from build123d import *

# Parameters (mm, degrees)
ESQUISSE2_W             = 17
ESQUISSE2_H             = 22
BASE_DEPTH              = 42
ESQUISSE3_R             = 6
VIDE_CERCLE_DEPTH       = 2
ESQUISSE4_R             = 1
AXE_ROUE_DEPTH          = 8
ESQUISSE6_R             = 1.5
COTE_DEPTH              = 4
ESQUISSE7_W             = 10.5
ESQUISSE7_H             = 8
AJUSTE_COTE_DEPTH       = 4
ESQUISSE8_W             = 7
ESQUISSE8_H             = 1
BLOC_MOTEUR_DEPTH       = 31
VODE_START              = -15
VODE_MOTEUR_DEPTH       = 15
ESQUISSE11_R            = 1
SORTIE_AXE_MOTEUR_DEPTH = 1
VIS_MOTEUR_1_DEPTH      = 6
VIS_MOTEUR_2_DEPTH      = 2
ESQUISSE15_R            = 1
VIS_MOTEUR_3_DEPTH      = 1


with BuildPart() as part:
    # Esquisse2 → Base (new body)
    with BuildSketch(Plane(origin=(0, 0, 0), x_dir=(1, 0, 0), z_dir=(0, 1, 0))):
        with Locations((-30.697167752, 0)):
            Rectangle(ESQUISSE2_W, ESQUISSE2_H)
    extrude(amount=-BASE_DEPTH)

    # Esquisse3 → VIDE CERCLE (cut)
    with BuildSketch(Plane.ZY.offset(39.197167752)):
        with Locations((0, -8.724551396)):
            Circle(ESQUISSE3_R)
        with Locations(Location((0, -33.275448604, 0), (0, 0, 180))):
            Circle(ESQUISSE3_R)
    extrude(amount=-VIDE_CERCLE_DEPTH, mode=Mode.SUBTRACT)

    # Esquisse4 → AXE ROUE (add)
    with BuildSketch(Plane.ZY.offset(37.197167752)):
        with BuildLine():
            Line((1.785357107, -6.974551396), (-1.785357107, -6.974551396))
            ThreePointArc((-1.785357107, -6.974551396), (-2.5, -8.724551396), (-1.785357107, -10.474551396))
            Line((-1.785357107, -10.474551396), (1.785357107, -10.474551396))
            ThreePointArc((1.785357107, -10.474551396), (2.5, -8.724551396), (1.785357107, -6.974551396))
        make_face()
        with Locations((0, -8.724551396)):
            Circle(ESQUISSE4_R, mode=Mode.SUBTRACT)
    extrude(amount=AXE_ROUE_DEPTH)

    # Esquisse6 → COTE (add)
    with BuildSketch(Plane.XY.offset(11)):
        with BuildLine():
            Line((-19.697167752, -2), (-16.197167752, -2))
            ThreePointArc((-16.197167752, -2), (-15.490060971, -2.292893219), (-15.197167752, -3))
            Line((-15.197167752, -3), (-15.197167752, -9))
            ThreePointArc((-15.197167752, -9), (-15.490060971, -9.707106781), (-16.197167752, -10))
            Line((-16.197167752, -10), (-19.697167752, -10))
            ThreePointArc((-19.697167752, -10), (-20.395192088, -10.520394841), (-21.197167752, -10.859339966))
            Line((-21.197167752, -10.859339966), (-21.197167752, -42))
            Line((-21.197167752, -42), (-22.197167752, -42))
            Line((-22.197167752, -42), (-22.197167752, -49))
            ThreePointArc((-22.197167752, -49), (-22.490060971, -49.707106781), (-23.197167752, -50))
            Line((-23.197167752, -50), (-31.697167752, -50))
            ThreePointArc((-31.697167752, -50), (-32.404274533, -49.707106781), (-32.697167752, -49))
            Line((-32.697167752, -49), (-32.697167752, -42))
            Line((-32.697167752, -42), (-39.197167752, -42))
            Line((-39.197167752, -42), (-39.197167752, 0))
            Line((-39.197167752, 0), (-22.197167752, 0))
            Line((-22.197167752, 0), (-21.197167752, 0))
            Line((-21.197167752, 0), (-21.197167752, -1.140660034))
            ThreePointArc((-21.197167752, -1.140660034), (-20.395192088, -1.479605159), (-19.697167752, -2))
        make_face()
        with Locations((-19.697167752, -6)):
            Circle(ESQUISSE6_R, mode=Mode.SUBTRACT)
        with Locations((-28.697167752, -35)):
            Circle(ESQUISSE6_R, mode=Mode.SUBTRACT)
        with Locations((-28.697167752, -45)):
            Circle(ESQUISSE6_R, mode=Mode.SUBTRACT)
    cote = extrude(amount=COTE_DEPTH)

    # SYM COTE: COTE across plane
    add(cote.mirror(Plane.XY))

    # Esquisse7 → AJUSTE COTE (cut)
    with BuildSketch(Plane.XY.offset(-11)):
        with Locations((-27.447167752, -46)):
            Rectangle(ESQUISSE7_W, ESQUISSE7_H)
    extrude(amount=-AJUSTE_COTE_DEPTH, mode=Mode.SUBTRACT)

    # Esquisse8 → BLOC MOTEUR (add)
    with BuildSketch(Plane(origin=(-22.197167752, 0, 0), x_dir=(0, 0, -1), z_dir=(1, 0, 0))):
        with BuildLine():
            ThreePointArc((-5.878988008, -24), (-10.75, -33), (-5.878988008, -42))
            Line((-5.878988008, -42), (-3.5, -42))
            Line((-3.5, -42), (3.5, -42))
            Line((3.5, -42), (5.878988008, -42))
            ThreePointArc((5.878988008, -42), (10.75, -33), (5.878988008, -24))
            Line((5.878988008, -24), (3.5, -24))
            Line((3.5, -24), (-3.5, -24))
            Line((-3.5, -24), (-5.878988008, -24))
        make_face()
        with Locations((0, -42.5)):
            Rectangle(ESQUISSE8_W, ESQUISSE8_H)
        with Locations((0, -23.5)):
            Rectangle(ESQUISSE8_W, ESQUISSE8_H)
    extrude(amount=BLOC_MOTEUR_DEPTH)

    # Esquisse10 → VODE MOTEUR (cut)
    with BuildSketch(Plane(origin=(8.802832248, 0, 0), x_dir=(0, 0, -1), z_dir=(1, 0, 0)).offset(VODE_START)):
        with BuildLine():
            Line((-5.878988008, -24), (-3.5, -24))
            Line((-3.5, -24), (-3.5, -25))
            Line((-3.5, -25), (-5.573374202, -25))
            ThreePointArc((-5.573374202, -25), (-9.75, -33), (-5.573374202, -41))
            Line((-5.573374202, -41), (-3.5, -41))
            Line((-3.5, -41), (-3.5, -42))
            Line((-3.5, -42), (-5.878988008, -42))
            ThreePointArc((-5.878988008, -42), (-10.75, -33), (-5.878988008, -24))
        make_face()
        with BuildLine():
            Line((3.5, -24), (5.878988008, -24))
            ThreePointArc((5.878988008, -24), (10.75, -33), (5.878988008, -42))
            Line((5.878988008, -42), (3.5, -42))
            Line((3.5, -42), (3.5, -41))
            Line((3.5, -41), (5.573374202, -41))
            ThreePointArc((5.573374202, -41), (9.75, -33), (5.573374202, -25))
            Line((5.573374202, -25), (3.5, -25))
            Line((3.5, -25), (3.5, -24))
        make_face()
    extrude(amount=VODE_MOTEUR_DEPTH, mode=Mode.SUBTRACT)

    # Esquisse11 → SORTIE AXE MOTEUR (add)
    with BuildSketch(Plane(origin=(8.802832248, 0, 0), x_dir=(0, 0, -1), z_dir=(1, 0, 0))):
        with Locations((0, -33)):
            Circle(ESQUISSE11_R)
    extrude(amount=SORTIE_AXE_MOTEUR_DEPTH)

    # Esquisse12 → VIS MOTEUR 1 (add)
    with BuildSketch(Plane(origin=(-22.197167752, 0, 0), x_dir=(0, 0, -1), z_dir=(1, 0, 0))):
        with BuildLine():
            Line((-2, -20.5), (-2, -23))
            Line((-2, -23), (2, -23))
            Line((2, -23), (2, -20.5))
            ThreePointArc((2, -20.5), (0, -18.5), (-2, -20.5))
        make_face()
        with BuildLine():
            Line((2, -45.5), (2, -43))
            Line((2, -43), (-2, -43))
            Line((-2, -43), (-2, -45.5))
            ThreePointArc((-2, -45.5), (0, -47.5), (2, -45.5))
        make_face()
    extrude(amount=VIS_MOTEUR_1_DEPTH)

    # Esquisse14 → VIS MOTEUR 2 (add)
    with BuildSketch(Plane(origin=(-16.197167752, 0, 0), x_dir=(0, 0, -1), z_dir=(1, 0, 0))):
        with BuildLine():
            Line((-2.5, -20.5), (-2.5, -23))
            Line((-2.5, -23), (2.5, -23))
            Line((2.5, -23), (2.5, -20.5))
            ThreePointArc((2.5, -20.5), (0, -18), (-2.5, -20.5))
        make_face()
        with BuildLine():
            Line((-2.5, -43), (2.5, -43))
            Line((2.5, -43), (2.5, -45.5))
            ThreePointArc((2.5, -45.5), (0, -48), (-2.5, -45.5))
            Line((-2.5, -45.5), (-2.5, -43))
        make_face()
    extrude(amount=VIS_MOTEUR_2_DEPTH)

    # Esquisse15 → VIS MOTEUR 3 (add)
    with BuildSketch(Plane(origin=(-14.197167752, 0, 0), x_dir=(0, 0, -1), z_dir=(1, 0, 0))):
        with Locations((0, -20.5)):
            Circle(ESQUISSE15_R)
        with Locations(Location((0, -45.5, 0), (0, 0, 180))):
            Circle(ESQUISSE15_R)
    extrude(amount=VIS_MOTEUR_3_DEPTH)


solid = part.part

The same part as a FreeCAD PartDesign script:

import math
import FreeCAD as App
import Part
import Sketcher

V = App.Vector


def add_polygon(sketch, points):
    """Adds a closed chain of lines whose ends are joined by coincident constraints."""
    first, n = sketch.GeometryCount, len(points)
    for a, b in zip(points, points[1:] + points[:1]):
        sketch.addGeometry(Part.LineSegment(App.Vector(*a, 0), App.Vector(*b, 0)), False)
    for i in range(n):
        sketch.addConstraint(Sketcher.Constraint("Coincident", first + i, 2, first + (i + 1) % n, 1))

doc = App.newDocument("Part")
params = doc.addObject("Spreadsheet::Sheet", "Params")
for row, (alias, value) in enumerate([
    ("sketch1_width", "17 mm"),
    ("sketch1_height", "22 mm"),
    ("pad1_length", "42 mm"),
    ("sketch2_diameter", "12 mm"),
    ("pocket1_length", "2 mm"),
    ("sketch3_diameter", "2 mm"),
    ("sketch3_radius", "2.5 mm"),
    ("pad2_length", "8 mm"),
    ("sketch4_diameter", "3 mm"),
    ("sketch4_radius", "1 mm"),
    ("sketch4_width", "18 mm"),
    ("sketch4_width2", "1 mm"),
    ("sketch4_height", "42 mm"),
    ("pad3_length", "4 mm"),
    ("sketch5_height", "8 mm"),
    ("sketch5_width", "10.5 mm"),
    ("pocket2_length", "4 mm"),
    ("sketch6_width", "1 mm"),
    ("sketch6_height", "7 mm"),
    ("sketch6_radius", "10.75 mm"),
    ("pad4_length", "31 mm"),
    ("sketch7_width", "1 mm"),
    ("sketch7_radius", "10.75 mm"),
    ("sketch7_radius2", "9.75 mm"),
    ("pocket3_length", "15 mm"),
    ("sketch8_diameter", "2 mm"),
    ("pad5_length", "1 mm"),
    ("sketch9_radius", "2 mm"),
    ("sketch9_width", "2.5 mm"),
    ("pad6_length", "6 mm"),
    ("sketch10_radius", "2.5 mm"),
    ("sketch10_width", "2.5 mm"),
    ("pad7_length", "2 mm"),
    ("sketch11_diameter", "2 mm"),
    ("pad8_length", "1 mm"),
], start=1):
    params.set(f"A{row}", alias)
    params.set(f"B{row}", "=" + value)
    params.setAlias(f"B{row}", alias)

body = doc.addObject("PartDesign::Body", "Body")

sketch1 = doc.addObject("Sketcher::SketchObject", "Sketch")
body.addObject(sketch1)
sketch1.AttachmentSupport = (doc.XZ_Plane, [""])
sketch1.MapMode = "FlatFace"
add_polygon(sketch1, [(-39.197168, -11), (-39.197168, 11), (-22.197168, 11), (-22.197168, -11)])
sketch1.addConstraint([
    Sketcher.Constraint("Vertical", 0),
    Sketcher.Constraint("Horizontal", 1),
    Sketcher.Constraint("Vertical", 2),
    Sketcher.Constraint("Horizontal", 3),
    Sketcher.Constraint("DistanceX", 1, 1, 1, 2, 17.0),
    Sketcher.Constraint("DistanceY", 0, 1, 0, 2, 22.0),
    Sketcher.Constraint("DistanceY", -1, 1, 0, 2, 11.0),
    Sketcher.Constraint("DistanceX", 0, 2, -1, 1, 39.197168),
])
sketch1.setExpression("Constraints[8]", "Params.sketch1_width")
sketch1.setExpression("Constraints[9]", "Params.sketch1_height")
pad1 = doc.addObject("PartDesign::Pad", "Pad")
body.addObject(pad1)
pad1.Profile = sketch1
pad1.setExpression("Length", "Params.pad1_length")

sketch2 = doc.addObject("Sketcher::SketchObject", "Sketch001")
body.addObject(sketch2)
sketch2.AttachmentSupport = (doc.YZ_Plane, [""])
sketch2.MapMode = "FlatFace"
sketch2.AttachmentOffset = App.Placement(V(0, 0, -39.197168), App.Rotation())
sketch2.addGeometry([
    Part.Circle(V(-8.724551, 0, 0), V(0, 0, 1), 6),
    Part.Circle(V(-33.275449, 0, 0), V(0, 0, 1), 6),
], False)
sketch2.addConstraint([
    Sketcher.Constraint("Equal", 0, 1),
    Sketcher.Constraint("PointOnObject", 0, 3, -1),
    Sketcher.Constraint("PointOnObject", 1, 3, -1),
    Sketcher.Constraint("Diameter", 0, 12.0),
    Sketcher.Constraint("DistanceX", 0, 3, -1, 1, 8.724551),
    Sketcher.Constraint("DistanceX", 1, 3, -1, 1, 33.275449),
])
sketch2.setExpression("Constraints[3]", "Params.sketch2_diameter")
pocket1 = doc.addObject("PartDesign::Pocket", "Pocket")
body.addObject(pocket1)
pocket1.Profile = sketch2
pocket1.setExpression("Length", "Params.pocket1_length")
pocket1.Reversed = True

sketch3 = doc.addObject("Sketcher::SketchObject", "Sketch002")
body.addObject(sketch3)
sketch3.AttachmentSupport = (doc.YZ_Plane, [""])
sketch3.MapMode = "FlatFace"
sketch3.AttachmentOffset = App.Placement(V(0, 0, -37.197168), App.Rotation())
sketch3.addGeometry([
    Part.LineSegment(V(-6.974551, 1.785357, 0), V(-6.974551, -1.785357, 0)),
    Part.ArcOfCircle(Part.Circle(V(-8.724551, 0, 0), V(0, 0, 1), 2.5), math.radians(-134.427004), math.radians(-45.572996)),
    Part.LineSegment(V(-10.474551, -1.785357, 0), V(-10.474551, 1.785357, 0)),
    Part.ArcOfCircle(Part.Circle(V(-8.724551, 0, 0), V(0, 0, 1), 2.5), math.radians(45.572996), math.radians(134.427004)),
    Part.Circle(V(-8.724551, 0, 0), V(0, 0, 1), 1),
], False)
sketch3.addConstraint([
    Sketcher.Constraint("Coincident", 0, 2, 1, 2),
    Sketcher.Constraint("Coincident", 1, 1, 2, 1),
    Sketcher.Constraint("Coincident", 2, 2, 3, 2),
    Sketcher.Constraint("Coincident", 3, 1, 0, 1),
    Sketcher.Constraint("Vertical", 0),
    Sketcher.Constraint("Vertical", 2),
    Sketcher.Constraint("Coincident", 3, 3, 1, 3),
    Sketcher.Constraint("Coincident", 4, 3, 1, 3),
    Sketcher.Constraint("Equal", 1, 3),
    Sketcher.Constraint("PointOnObject", 1, 3, -1),
    Sketcher.Constraint("Horizontal", 0, 2, 1, 1),
    Sketcher.Constraint("Diameter", 4, 2.0),
    Sketcher.Constraint("Radius", 1, 2.5),
    Sketcher.Constraint("DistanceX", 1, 1, 0, 2, 3.5),
    Sketcher.Constraint("DistanceX", 1, 3, -1, 1, 8.724551),
])
sketch3.setExpression("Constraints[11]", "Params.sketch3_diameter")
sketch3.setExpression("Constraints[12]", "Params.sketch3_radius")
pad2 = doc.addObject("PartDesign::Pad", "Pad001")
body.addObject(pad2)
pad2.Profile = sketch3
pad2.setExpression("Length", "Params.pad2_length")
pad2.Reversed = True

sketch4 = doc.addObject("Sketcher::SketchObject", "Sketch003")
body.addObject(sketch4)
sketch4.AttachmentSupport = (doc.XY_Plane, [""])
sketch4.MapMode = "FlatFace"
sketch4.AttachmentOffset = App.Placement(V(0, 0, 11), App.Rotation())
sketch4.addGeometry([
    Part.LineSegment(V(-16.197168, -2, 0), V(-19.697168, -2, 0)),
    Part.ArcOfCircle(Part.Circle(V(-22.197168, -4.625, 0), V(0, 0, 1), 3.625), math.radians(46.397181), math.radians(73.986606)),
    Part.LineSegment(V(-21.197168, -1.14066, 0), V(-21.197168, 0, 0)),
    Part.LineSegment(V(-21.197168, 0, 0), V(-39.197168, 0, 0)),
    Part.LineSegment(V(-39.197168, 0, 0), V(-39.197168, -42, 0)),
    Part.LineSegment(V(-39.197168, -42, 0), V(-32.697168, -42, 0)),
    Part.LineSegment(V(-32.697168, -42, 0), V(-32.697168, -49, 0)),
    Part.ArcOfCircle(Part.Circle(V(-31.697168, -49, 0), V(0, 0, 1), 1), math.radians(-180), math.radians(-90)),
    Part.LineSegment(V(-31.697168, -50, 0), V(-23.197168, -50, 0)),
    Part.ArcOfCircle(Part.Circle(V(-23.197168, -49, 0), V(0, 0, 1), 1), math.radians(-90), math.radians(0)),
    Part.LineSegment(V(-22.197168, -49, 0), V(-22.197168, -42, 0)),
    Part.LineSegment(V(-22.197168, -42, 0), V(-21.197168, -42, 0)),
    Part.LineSegment(V(-21.197168, -42, 0), V(-21.197168, -10.85934, 0)),
    Part.ArcOfCircle(Part.Circle(V(-22.197168, -7.375, 0), V(0, 0, 1), 3.625), math.radians(-73.986606), math.radians(-46.397181)),
    Part.LineSegment(V(-19.697168, -10, 0), V(-16.197168, -10, 0)),
    Part.ArcOfCircle(Part.Circle(V(-16.197168, -9, 0), V(0, 0, 1), 1), math.radians(-90), math.radians(0)),
    Part.LineSegment(V(-15.197168, -9, 0), V(-15.197168, -3, 0)),
    Part.ArcOfCircle(Part.Circle(V(-16.197168, -3, 0), V(0, 0, 1), 1), math.radians(0), math.radians(90)),
    Part.Circle(V(-28.697168, -45, 0), V(0, 0, 1), 1.5),
    Part.Circle(V(-28.697168, -35, 0), V(0, 0, 1), 1.5),
    Part.Circle(V(-19.697168, -6, 0), V(0, 0, 1), 1.5),
], False)
sketch4.addConstraint([
    Sketcher.Constraint("Coincident", 0, 2, 1, 1),
    Sketcher.Constraint("Coincident", 1, 2, 2, 1),
    Sketcher.Constraint("Coincident", 2, 2, 3, 1),
    Sketcher.Constraint("Coincident", 3, 2, 4, 1),
    Sketcher.Constraint("Coincident", 4, 2, 5, 1),
    Sketcher.Constraint("Coincident", 5, 2, 6, 1),
    Sketcher.Constraint("Tangent", 6, 2, 7, 1),
    Sketcher.Constraint("Tangent", 7, 2, 8, 1),
    Sketcher.Constraint("Tangent", 8, 2, 9, 1),
    Sketcher.Constraint("Tangent", 9, 2, 10, 1),
    Sketcher.Constraint("Coincident", 10, 2, 11, 1),
    Sketcher.Constraint("Coincident", 11, 2, 12, 1),
    Sketcher.Constraint("Coincident", 12, 2, 13, 1),
    Sketcher.Constraint("Coincident", 13, 2, 14, 1),
    Sketcher.Constraint("Tangent", 14, 2, 15, 1),
    Sketcher.Constraint("Tangent", 15, 2, 16, 1),
    Sketcher.Constraint("Tangent", 16, 2, 17, 1),
    Sketcher.Constraint("Tangent", 17, 2, 0, 1),
    Sketcher.Constraint("Horizontal", 0),
    Sketcher.Constraint("Vertical", 2),
    Sketcher.Constraint("Horizontal", 3),
    Sketcher.Constraint("Vertical", 4),
    Sketcher.Constraint("Horizontal", 5),
    Sketcher.Constraint("Vertical", 6),
    Sketcher.Constraint("Horizontal", 8),
    Sketcher.Constraint("Vertical", 10),
    Sketcher.Constraint("Horizontal", 11),
    Sketcher.Constraint("Vertical", 12),
    Sketcher.Constraint("Horizontal", 14),
    Sketcher.Constraint("Vertical", 16),
    Sketcher.Constraint("Equal", 7, 9),
    Sketcher.Constraint("Equal", 1, 13),
    Sketcher.Constraint("Equal", 9, 15),
    Sketcher.Constraint("Equal", 15, 17),
    Sketcher.Constraint("Equal", 18, 19),
    Sketcher.Constraint("Equal", 19, 20),
    Sketcher.Constraint("PointOnObject", 2, 2, -1),
    Sketcher.Constraint("Horizontal", 5, 2, 10, 2),
    Sketcher.Constraint("Vertical", 1, 3, 13, 3),
    Sketcher.Constraint("Vertical", 18, 3, 19, 3),
    Sketcher.Constraint("Vertical", 20, 3, 0, 2),
    Sketcher.Constraint("Vertical", 13, 3, 9, 2),
    Sketcher.Constraint("Vertical", 2, 2, 11, 2),
    Sketcher.Constraint("Vertical", 0, 2, 13, 2),
    Sketcher.Constraint("Diameter", 18, 3.0),
    Sketcher.Constraint("Radius", 7, 1.0),
    Sketcher.Constraint("DistanceX", 3, 2, 3, 1, 18.0),
    Sketcher.Constraint("DistanceX", 11, 1, 11, 2, 1.0),
    Sketcher.Constraint("DistanceY", 4, 2, 4, 1, 42.0),
    Sketcher.Constraint("DistanceY", 6, 2, 6, 1, 7.0),
    Sketcher.Constraint("DistanceY", 16, 1, 16, 2, 6.0),
    Sketcher.Constraint("DistanceX", 0, 2, 0, 1, 3.5),
    Sketcher.Constraint("DistanceX", 5, 1, 5, 2, 6.5),
    Sketcher.Constraint("DistanceY", 15, 3, -1, 1, 9.0),
    Sketcher.Constraint("DistanceY", 18, 3, -1, 1, 45.0),
    Sketcher.Constraint("DistanceY", 19, 3, -1, 1, 35.0),
    Sketcher.Constraint("DistanceY", 20, 3, -1, 1, 6.0),
    Sketcher.Constraint("Radius", 1, 3.625),
    Sketcher.Constraint("DistanceX", 13, 3, 15, 3, 6.0),
    Sketcher.Constraint("DistanceX", 7, 3, 18, 3, 3.0),
    Sketcher.Constraint("DistanceX", 1, 3, -1, 1, 22.197168),
])
sketch4.setExpression("Constraints[44]", "Params.sketch4_diameter")
sketch4.setExpression("Constraints[45]", "Params.sketch4_radius")
sketch4.setExpression("Constraints[46]", "Params.sketch4_width")
sketch4.setExpression("Constraints[47]", "Params.sketch4_width2")
sketch4.setExpression("Constraints[48]", "Params.sketch4_height")
pad3 = doc.addObject("PartDesign::Pad", "Pad002")
body.addObject(pad3)
pad3.Profile = sketch4
pad3.setExpression("Length", "Params.pad3_length")
doc.recompute()

mirrored = doc.addObject("PartDesign::Mirrored", "Mirrored")
body.addObject(mirrored)
mirrored.Originals = [pad3]
mirrored.MirrorPlane = (doc.XY_Plane, [""])
body.Tip = mirrored

sketch5 = doc.addObject("Sketcher::SketchObject", "Sketch004")
body.addObject(sketch5)
sketch5.AttachmentSupport = (doc.XY_Plane, [""])
sketch5.MapMode = "FlatFace"
sketch5.AttachmentOffset = App.Placement(V(0, 0, -11), App.Rotation())
add_polygon(sketch5, [(-32.697168, -42), (-32.697168, -50), (-22.197168, -50), (-22.197168, -42)])
sketch5.addConstraint([
    Sketcher.Constraint("Vertical", 0),
    Sketcher.Constraint("Horizontal", 1),
    Sketcher.Constraint("Vertical", 2),
    Sketcher.Constraint("Horizontal", 3),
    Sketcher.Constraint("DistanceY", 0, 2, 0, 1, 8.0),
    Sketcher.Constraint("DistanceX", 1, 1, 1, 2, 10.5),
    Sketcher.Constraint("DistanceY", 0, 2, -1, 1, 50.0),
    Sketcher.Constraint("DistanceX", 0, 2, -1, 1, 32.697168),
])
sketch5.setExpression("Constraints[8]", "Params.sketch5_height")
sketch5.setExpression("Constraints[9]", "Params.sketch5_width")
pocket2 = doc.addObject("PartDesign::Pocket", "Pocket001")
body.addObject(pocket2)
pocket2.Profile = sketch5
pocket2.setExpression("Length", "Params.pocket2_length")

sketch6 = doc.addObject("Sketcher::SketchObject", "Sketch005")
body.addObject(sketch6)
sketch6.AttachmentSupport = (doc.YZ_Plane, [""])
sketch6.MapMode = "FlatFace"
sketch6.AttachmentOffset = App.Placement(V(0, 0, -22.197168), App.Rotation())
sketch6.addGeometry([
    Part.ArcOfCircle(Part.Circle(V(-33, 0, 0), V(0, 0, 1), 10.75), math.radians(33.153408), math.radians(146.846592)),
    Part.LineSegment(V(-42, 5.878988, 0), V(-42, 3.5, 0)),
    Part.LineSegment(V(-42, 3.5, 0), V(-43, 3.5, 0)),
    Part.LineSegment(V(-43, 3.5, 0), V(-43, -3.5, 0)),
    Part.LineSegment(V(-43, -3.5, 0), V(-42, -3.5, 0)),
    Part.LineSegment(V(-42, -3.5, 0), V(-42, -5.878988, 0)),
    Part.ArcOfCircle(Part.Circle(V(-33, 0, 0), V(0, 0, 1), 10.75), math.radians(-146.846592), math.radians(-33.153408)),
    Part.LineSegment(V(-24, -5.878988, 0), V(-24, -3.5, 0)),
    Part.LineSegment(V(-24, -3.5, 0), V(-23, -3.5, 0)),
    Part.LineSegment(V(-23, -3.5, 0), V(-23, 3.5, 0)),
    Part.LineSegment(V(-23, 3.5, 0), V(-24, 3.5, 0)),
    Part.LineSegment(V(-24, 3.5, 0), V(-24, 5.878988, 0)),
], False)
sketch6.addConstraint([
    Sketcher.Constraint("Coincident", 0, 2, 1, 1),
    Sketcher.Constraint("Coincident", 1, 2, 2, 1),
    Sketcher.Constraint("Coincident", 2, 2, 3, 1),
    Sketcher.Constraint("Coincident", 3, 2, 4, 1),
    Sketcher.Constraint("Coincident", 4, 2, 5, 1),
    Sketcher.Constraint("Coincident", 5, 2, 6, 1),
    Sketcher.Constraint("Coincident", 6, 2, 7, 1),
    Sketcher.Constraint("Coincident", 7, 2, 8, 1),
    Sketcher.Constraint("Coincident", 8, 2, 9, 1),
    Sketcher.Constraint("Coincident", 9, 2, 10, 1),
    Sketcher.Constraint("Coincident", 10, 2, 11, 1),
    Sketcher.Constraint("Coincident", 11, 2, 0, 1),
    Sketcher.Constraint("Vertical", 1),
    Sketcher.Constraint("Horizontal", 2),
    Sketcher.Constraint("Vertical", 3),
    Sketcher.Constraint("Horizontal", 4),
    Sketcher.Constraint("Vertical", 5),
    Sketcher.Constraint("Vertical", 7),
    Sketcher.Constraint("Horizontal", 8),
    Sketcher.Constraint("Vertical", 9),
    Sketcher.Constraint("Horizontal", 10),
    Sketcher.Constraint("Vertical", 11),
    Sketcher.Constraint("Coincident", 6, 3, 0, 3),
    Sketcher.Constraint("Equal", 0, 6),
    Sketcher.Constraint("Symmetric", 1, 2, 4, 2, -1),
    Sketcher.Constraint("Symmetric", 7, 2, 10, 2, -1),
    Sketcher.Constraint("PointOnObject", 0, 3, -1),
    Sketcher.Constraint("Horizontal", 5, 2, 6, 2),
    Sketcher.Constraint("Horizontal", 4, 2, 7, 2),
    Sketcher.Constraint("Equal", 4, 8),
    Sketcher.Constraint("DistanceX", 2, 2, 2, 1, 1.0),
    Sketcher.Constraint("DistanceY", 3, 2, 3, 1, 7.0),
    Sketcher.Constraint("Radius", 0, 10.75),
    Sketcher.Constraint("DistanceX", 0, 3, -1, 1, 33.0),
    Sketcher.Constraint("DistanceX", 0, 2, -1, 1, 42.0),
])
sketch6.setExpression("Constraints[30]", "Params.sketch6_width")
sketch6.setExpression("Constraints[31]", "Params.sketch6_height")
sketch6.setExpression("Constraints[32]", "Params.sketch6_radius")
pad4 = doc.addObject("PartDesign::Pad", "Pad003")
body.addObject(pad4)
pad4.Profile = sketch6
pad4.setExpression("Length", "Params.pad4_length")

sketch7 = doc.addObject("Sketcher::SketchObject", "Sketch006")
body.addObject(sketch7)
sketch7.AttachmentSupport = (doc.YZ_Plane, [""])
sketch7.MapMode = "FlatFace"
sketch7.AttachmentOffset = App.Placement(V(0, 0, -6.197168), App.Rotation())
sketch7.addGeometry([
    Part.LineSegment(V(-24, 3.5, 0), V(-24, 5.878988, 0)),
    Part.ArcOfCircle(Part.Circle(V(-33, 0, 0), V(0, 0, 1), 10.75), math.radians(33.153408), math.radians(146.846592)),
    Part.LineSegment(V(-42, 5.878988, 0), V(-42, 3.5, 0)),
    Part.LineSegment(V(-42, 3.5, 0), V(-41, 3.5, 0)),
    Part.LineSegment(V(-41, 3.5, 0), V(-41, 5.573374, 0)),
    Part.ArcOfCircle(Part.Circle(V(-33, 0, 0), V(0, 0, 1), 9.75), math.radians(34.863838), math.radians(145.136162)),
    Part.LineSegment(V(-25, 5.573374, 0), V(-25, 3.5, 0)),
    Part.LineSegment(V(-25, 3.5, 0), V(-24, 3.5, 0)),
    Part.LineSegment(V(-24, -5.878988, 0), V(-24, -3.5, 0)),
    Part.LineSegment(V(-24, -3.5, 0), V(-25, -3.5, 0)),
    Part.LineSegment(V(-25, -3.5, 0), V(-25, -5.573374, 0)),
    Part.ArcOfCircle(Part.Circle(V(-33, 0, 0), V(0, 0, 1), 9.75), math.radians(-145.136162), math.radians(-34.863838)),
    Part.LineSegment(V(-41, -5.573374, 0), V(-41, -3.5, 0)),
    Part.LineSegment(V(-41, -3.5, 0), V(-42, -3.5, 0)),
    Part.LineSegment(V(-42, -3.5, 0), V(-42, -5.878988, 0)),
    Part.ArcOfCircle(Part.Circle(V(-33, 0, 0), V(0, 0, 1), 10.75), math.radians(-146.846592), math.radians(-33.153408)),
], False)
sketch7.addConstraint([
    Sketcher.Constraint("Coincident", 0, 2, 1, 1),
    Sketcher.Constraint("Coincident", 1, 2, 2, 1),
    Sketcher.Constraint("Coincident", 2, 2, 3, 1),
    Sketcher.Constraint("Coincident", 3, 2, 4, 1),
    Sketcher.Constraint("Coincident", 4, 2, 5, 2),
    Sketcher.Constraint("Coincident", 5, 1, 6, 1),
    Sketcher.Constraint("Coincident", 6, 2, 7, 1),
    Sketcher.Constraint("Coincident", 7, 2, 0, 1),
    Sketcher.Constraint("Coincident", 8, 2, 9, 1),
    Sketcher.Constraint("Coincident", 9, 2, 10, 1),
    Sketcher.Constraint("Coincident", 10, 2, 11, 2),
    Sketcher.Constraint("Coincident", 11, 1, 12, 1),
    Sketcher.Constraint("Coincident", 12, 2, 13, 1),
    Sketcher.Constraint("Coincident", 13, 2, 14, 1),
    Sketcher.Constraint("Coincident", 14, 2, 15, 1),
    Sketcher.Constraint("Coincident", 15, 2, 8, 1),
    Sketcher.Constraint("Vertical", 0),
    Sketcher.Constraint("Vertical", 2),
    Sketcher.Constraint("Horizontal", 3),
    Sketcher.Constraint("Vertical", 4),
    Sketcher.Constraint("Vertical", 6),
    Sketcher.Constraint("Horizontal", 7),
    Sketcher.Constraint("Vertical", 8),
    Sketcher.Constraint("Horizontal", 9),
    Sketcher.Constraint("Vertical", 10),
    Sketcher.Constraint("Vertical", 12),
    Sketcher.Constraint("Horizontal", 13),
    Sketcher.Constraint("Vertical", 14),
    Sketcher.Constraint("Coincident", 5, 3, 1, 3),
    Sketcher.Constraint("Coincident", 11, 3, 1, 3),
    Sketcher.Constraint("Coincident", 15, 3, 1, 3),
    Sketcher.Constraint("Equal", 5, 11),
    Sketcher.Constraint("Equal", 1, 15),
    Sketcher.Constraint("Symmetric", 7, 2, 8, 2, -1),
    Sketcher.Constraint("Symmetric", 5, 1, 10, 2, -1),
    Sketcher.Constraint("Symmetric", 3, 2, 12, 2, -1),
    Sketcher.Constraint("Horizontal", 0, 2, 1, 2),
    Sketcher.Constraint("Horizontal", 4, 2, 5, 1),
    Sketcher.Constraint("Horizontal", 3, 2, 6, 2),
    Sketcher.Constraint("Horizontal", 14, 2, 15, 2),
    Sketcher.Constraint("DistanceX", 3, 1, 3, 2, 1.0),
    Sketcher.Constraint("Radius", 1, 10.75),
    Sketcher.Constraint("Radius", 5, 9.75),
    Sketcher.Constraint("DistanceX", 1, 3, -1, 1, 33.0),
    Sketcher.Constraint("DistanceX", 0, 2, -1, 1, 24.0),
    Sketcher.Constraint("DistanceY", 8, 2, 7, 2, 7.0),
])
sketch7.setExpression("Constraints[40]", "Params.sketch7_width")
sketch7.setExpression("Constraints[41]", "Params.sketch7_radius")
sketch7.setExpression("Constraints[42]", "Params.sketch7_radius2")
pocket3 = doc.addObject("PartDesign::Pocket", "Pocket002")
body.addObject(pocket3)
pocket3.Profile = sketch7
pocket3.setExpression("Length", "Params.pocket3_length")
pocket3.Reversed = True

sketch8 = doc.addObject("Sketcher::SketchObject", "Sketch007")
body.addObject(sketch8)
sketch8.AttachmentSupport = (doc.YZ_Plane, [""])
sketch8.MapMode = "FlatFace"
sketch8.AttachmentOffset = App.Placement(V(0, 0, 8.802832), App.Rotation())
sketch8.addGeometry(Part.Circle(V(-33, 0, 0), V(0, 0, 1), 1), False)
sketch8.addConstraint([
    Sketcher.Constraint("PointOnObject", 0, 3, -1),
    Sketcher.Constraint("Diameter", 0, 2.0),
    Sketcher.Constraint("DistanceX", 0, 3, -1, 1, 33.0),
])
sketch8.setExpression("Constraints[1]", "Params.sketch8_diameter")
pad5 = doc.addObject("PartDesign::Pad", "Pad004")
body.addObject(pad5)
pad5.Profile = sketch8
pad5.setExpression("Length", "Params.pad5_length")

sketch9 = doc.addObject("Sketcher::SketchObject", "Sketch008")
body.addObject(sketch9)
sketch9.AttachmentSupport = (doc.YZ_Plane, [""])
sketch9.MapMode = "FlatFace"
sketch9.AttachmentOffset = App.Placement(V(0, 0, -22.197168), App.Rotation())
sketch9.addGeometry([
    Part.LineSegment(V(-20.5, 2, 0), V(-23, 2, 0)),
    Part.LineSegment(V(-23, 2, 0), V(-23, -2, 0)),
    Part.LineSegment(V(-23, -2, 0), V(-20.5, -2, 0)),
    Part.ArcOfCircle(Part.Circle(V(-20.5, 0, 0), V(0, 0, 1), 2), math.radians(-90), math.radians(90)),
    Part.LineSegment(V(-45.5, -2, 0), V(-43, -2, 0)),
    Part.LineSegment(V(-43, -2, 0), V(-43, 2, 0)),
    Part.LineSegment(V(-43, 2, 0), V(-45.5, 2, 0)),
    Part.ArcOfCircle(Part.Circle(V(-45.5, 0, 0), V(0, 0, 1), 2), math.radians(90), math.radians(270)),
], False)
sketch9.addConstraint([
    Sketcher.Constraint("Coincident", 0, 2, 1, 1),
    Sketcher.Constraint("Coincident", 1, 2, 2, 1),
    Sketcher.Constraint("Tangent", 2, 2, 3, 1),
    Sketcher.Constraint("Tangent", 3, 2, 0, 1),
    Sketcher.Constraint("Coincident", 4, 2, 5, 1),
    Sketcher.Constraint("Coincident", 5, 2, 6, 1),
    Sketcher.Constraint("Tangent", 6, 2, 7, 1),
    Sketcher.Constraint("Tangent", 7, 2, 4, 1),
    Sketcher.Constraint("Horizontal", 0),
    Sketcher.Constraint("Vertical", 1),
    Sketcher.Constraint("Horizontal", 2),
    Sketcher.Constraint("Horizontal", 4),
    Sketcher.Constraint("Vertical", 5),
    Sketcher.Constraint("Horizontal", 6),
    Sketcher.Constraint("Equal", 3, 7),
    Sketcher.Constraint("PointOnObject", 3, 3, -1),
    Sketcher.Constraint("PointOnObject", 7, 3, -1),
    Sketcher.Constraint("Equal", 2, 4),
    Sketcher.Constraint("Radius", 3, 2.0),
    Sketcher.Constraint("DistanceX", 0, 2, 0, 1, 2.5),
    Sketcher.Constraint("DistanceX", 0, 2, -1, 1, 23.0),
    Sketcher.Constraint("DistanceX", 4, 2, -1, 1, 43.0),
])
sketch9.setExpression("Constraints[18]", "Params.sketch9_radius")
sketch9.setExpression("Constraints[19]", "Params.sketch9_width")
pad6 = doc.addObject("PartDesign::Pad", "Pad005")
body.addObject(pad6)
pad6.Profile = sketch9
pad6.setExpression("Length", "Params.pad6_length")

sketch10 = doc.addObject("Sketcher::SketchObject", "Sketch009")
body.addObject(sketch10)
sketch10.AttachmentSupport = (doc.YZ_Plane, [""])
sketch10.MapMode = "FlatFace"
sketch10.AttachmentOffset = App.Placement(V(0, 0, -16.197168), App.Rotation())
sketch10.addGeometry([
    Part.LineSegment(V(-20.5, 2.5, 0), V(-23, 2.5, 0)),
    Part.LineSegment(V(-23, 2.5, 0), V(-23, -2.5, 0)),
    Part.LineSegment(V(-23, -2.5, 0), V(-20.5, -2.5, 0)),
    Part.ArcOfCircle(Part.Circle(V(-20.5, 0, 0), V(0, 0, 1), 2.5), math.radians(-90), math.radians(90)),
    Part.LineSegment(V(-43, -2.5, 0), V(-43, 2.5, 0)),
    Part.LineSegment(V(-43, 2.5, 0), V(-45.5, 2.5, 0)),
    Part.ArcOfCircle(Part.Circle(V(-45.5, 0, 0), V(0, 0, 1), 2.5), math.radians(90), math.radians(270)),
    Part.LineSegment(V(-45.5, -2.5, 0), V(-43, -2.5, 0)),
], False)
sketch10.addConstraint([
    Sketcher.Constraint("Coincident", 0, 2, 1, 1),
    Sketcher.Constraint("Coincident", 1, 2, 2, 1),
    Sketcher.Constraint("Tangent", 2, 2, 3, 1),
    Sketcher.Constraint("Tangent", 3, 2, 0, 1),
    Sketcher.Constraint("Coincident", 4, 2, 5, 1),
    Sketcher.Constraint("Tangent", 5, 2, 6, 1),
    Sketcher.Constraint("Tangent", 6, 2, 7, 1),
    Sketcher.Constraint("Coincident", 7, 2, 4, 1),
    Sketcher.Constraint("Horizontal", 0),
    Sketcher.Constraint("Vertical", 1),
    Sketcher.Constraint("Horizontal", 2),
    Sketcher.Constraint("Vertical", 4),
    Sketcher.Constraint("Horizontal", 5),
    Sketcher.Constraint("Horizontal", 7),
    Sketcher.Constraint("Equal", 3, 6),
    Sketcher.Constraint("PointOnObject", 3, 3, -1),
    Sketcher.Constraint("PointOnObject", 6, 3, -1),
    Sketcher.Constraint("Equal", 2, 5),
    Sketcher.Constraint("Radius", 3, 2.5),
    Sketcher.Constraint("DistanceX", 0, 2, 0, 1, 2.5),
    Sketcher.Constraint("DistanceX", 0, 2, -1, 1, 23.0),
    Sketcher.Constraint("DistanceX", 4, 2, -1, 1, 43.0),
])
sketch10.setExpression("Constraints[18]", "Params.sketch10_radius")
sketch10.setExpression("Constraints[19]", "Params.sketch10_width")
pad7 = doc.addObject("PartDesign::Pad", "Pad006")
body.addObject(pad7)
pad7.Profile = sketch10
pad7.setExpression("Length", "Params.pad7_length")

sketch11 = doc.addObject("Sketcher::SketchObject", "Sketch010")
body.addObject(sketch11)
sketch11.AttachmentSupport = (doc.YZ_Plane, [""])
sketch11.MapMode = "FlatFace"
sketch11.AttachmentOffset = App.Placement(V(0, 0, -14.197168), App.Rotation())
sketch11.addGeometry([
    Part.Circle(V(-20.5, 0, 0), V(0, 0, 1), 1),
    Part.Circle(V(-45.5, 0, 0), V(0, 0, 1), 1),
], False)
sketch11.addConstraint([
    Sketcher.Constraint("Equal", 0, 1),
    Sketcher.Constraint("PointOnObject", 0, 3, -1),
    Sketcher.Constraint("PointOnObject", 1, 3, -1),
    Sketcher.Constraint("Diameter", 0, 2.0),
    Sketcher.Constraint("DistanceX", 1, 3, 0, 3, 25.0),
    Sketcher.Constraint("DistanceX", 0, 3, -1, 1, 20.5),
])
sketch11.setExpression("Constraints[3]", "Params.sketch11_diameter")
pad8 = doc.addObject("PartDesign::Pad", "Pad007")
body.addObject(pad8)
pad8.Profile = sketch11
pad8.setExpression("Length", "Params.pad8_length")

doc.recompute()
